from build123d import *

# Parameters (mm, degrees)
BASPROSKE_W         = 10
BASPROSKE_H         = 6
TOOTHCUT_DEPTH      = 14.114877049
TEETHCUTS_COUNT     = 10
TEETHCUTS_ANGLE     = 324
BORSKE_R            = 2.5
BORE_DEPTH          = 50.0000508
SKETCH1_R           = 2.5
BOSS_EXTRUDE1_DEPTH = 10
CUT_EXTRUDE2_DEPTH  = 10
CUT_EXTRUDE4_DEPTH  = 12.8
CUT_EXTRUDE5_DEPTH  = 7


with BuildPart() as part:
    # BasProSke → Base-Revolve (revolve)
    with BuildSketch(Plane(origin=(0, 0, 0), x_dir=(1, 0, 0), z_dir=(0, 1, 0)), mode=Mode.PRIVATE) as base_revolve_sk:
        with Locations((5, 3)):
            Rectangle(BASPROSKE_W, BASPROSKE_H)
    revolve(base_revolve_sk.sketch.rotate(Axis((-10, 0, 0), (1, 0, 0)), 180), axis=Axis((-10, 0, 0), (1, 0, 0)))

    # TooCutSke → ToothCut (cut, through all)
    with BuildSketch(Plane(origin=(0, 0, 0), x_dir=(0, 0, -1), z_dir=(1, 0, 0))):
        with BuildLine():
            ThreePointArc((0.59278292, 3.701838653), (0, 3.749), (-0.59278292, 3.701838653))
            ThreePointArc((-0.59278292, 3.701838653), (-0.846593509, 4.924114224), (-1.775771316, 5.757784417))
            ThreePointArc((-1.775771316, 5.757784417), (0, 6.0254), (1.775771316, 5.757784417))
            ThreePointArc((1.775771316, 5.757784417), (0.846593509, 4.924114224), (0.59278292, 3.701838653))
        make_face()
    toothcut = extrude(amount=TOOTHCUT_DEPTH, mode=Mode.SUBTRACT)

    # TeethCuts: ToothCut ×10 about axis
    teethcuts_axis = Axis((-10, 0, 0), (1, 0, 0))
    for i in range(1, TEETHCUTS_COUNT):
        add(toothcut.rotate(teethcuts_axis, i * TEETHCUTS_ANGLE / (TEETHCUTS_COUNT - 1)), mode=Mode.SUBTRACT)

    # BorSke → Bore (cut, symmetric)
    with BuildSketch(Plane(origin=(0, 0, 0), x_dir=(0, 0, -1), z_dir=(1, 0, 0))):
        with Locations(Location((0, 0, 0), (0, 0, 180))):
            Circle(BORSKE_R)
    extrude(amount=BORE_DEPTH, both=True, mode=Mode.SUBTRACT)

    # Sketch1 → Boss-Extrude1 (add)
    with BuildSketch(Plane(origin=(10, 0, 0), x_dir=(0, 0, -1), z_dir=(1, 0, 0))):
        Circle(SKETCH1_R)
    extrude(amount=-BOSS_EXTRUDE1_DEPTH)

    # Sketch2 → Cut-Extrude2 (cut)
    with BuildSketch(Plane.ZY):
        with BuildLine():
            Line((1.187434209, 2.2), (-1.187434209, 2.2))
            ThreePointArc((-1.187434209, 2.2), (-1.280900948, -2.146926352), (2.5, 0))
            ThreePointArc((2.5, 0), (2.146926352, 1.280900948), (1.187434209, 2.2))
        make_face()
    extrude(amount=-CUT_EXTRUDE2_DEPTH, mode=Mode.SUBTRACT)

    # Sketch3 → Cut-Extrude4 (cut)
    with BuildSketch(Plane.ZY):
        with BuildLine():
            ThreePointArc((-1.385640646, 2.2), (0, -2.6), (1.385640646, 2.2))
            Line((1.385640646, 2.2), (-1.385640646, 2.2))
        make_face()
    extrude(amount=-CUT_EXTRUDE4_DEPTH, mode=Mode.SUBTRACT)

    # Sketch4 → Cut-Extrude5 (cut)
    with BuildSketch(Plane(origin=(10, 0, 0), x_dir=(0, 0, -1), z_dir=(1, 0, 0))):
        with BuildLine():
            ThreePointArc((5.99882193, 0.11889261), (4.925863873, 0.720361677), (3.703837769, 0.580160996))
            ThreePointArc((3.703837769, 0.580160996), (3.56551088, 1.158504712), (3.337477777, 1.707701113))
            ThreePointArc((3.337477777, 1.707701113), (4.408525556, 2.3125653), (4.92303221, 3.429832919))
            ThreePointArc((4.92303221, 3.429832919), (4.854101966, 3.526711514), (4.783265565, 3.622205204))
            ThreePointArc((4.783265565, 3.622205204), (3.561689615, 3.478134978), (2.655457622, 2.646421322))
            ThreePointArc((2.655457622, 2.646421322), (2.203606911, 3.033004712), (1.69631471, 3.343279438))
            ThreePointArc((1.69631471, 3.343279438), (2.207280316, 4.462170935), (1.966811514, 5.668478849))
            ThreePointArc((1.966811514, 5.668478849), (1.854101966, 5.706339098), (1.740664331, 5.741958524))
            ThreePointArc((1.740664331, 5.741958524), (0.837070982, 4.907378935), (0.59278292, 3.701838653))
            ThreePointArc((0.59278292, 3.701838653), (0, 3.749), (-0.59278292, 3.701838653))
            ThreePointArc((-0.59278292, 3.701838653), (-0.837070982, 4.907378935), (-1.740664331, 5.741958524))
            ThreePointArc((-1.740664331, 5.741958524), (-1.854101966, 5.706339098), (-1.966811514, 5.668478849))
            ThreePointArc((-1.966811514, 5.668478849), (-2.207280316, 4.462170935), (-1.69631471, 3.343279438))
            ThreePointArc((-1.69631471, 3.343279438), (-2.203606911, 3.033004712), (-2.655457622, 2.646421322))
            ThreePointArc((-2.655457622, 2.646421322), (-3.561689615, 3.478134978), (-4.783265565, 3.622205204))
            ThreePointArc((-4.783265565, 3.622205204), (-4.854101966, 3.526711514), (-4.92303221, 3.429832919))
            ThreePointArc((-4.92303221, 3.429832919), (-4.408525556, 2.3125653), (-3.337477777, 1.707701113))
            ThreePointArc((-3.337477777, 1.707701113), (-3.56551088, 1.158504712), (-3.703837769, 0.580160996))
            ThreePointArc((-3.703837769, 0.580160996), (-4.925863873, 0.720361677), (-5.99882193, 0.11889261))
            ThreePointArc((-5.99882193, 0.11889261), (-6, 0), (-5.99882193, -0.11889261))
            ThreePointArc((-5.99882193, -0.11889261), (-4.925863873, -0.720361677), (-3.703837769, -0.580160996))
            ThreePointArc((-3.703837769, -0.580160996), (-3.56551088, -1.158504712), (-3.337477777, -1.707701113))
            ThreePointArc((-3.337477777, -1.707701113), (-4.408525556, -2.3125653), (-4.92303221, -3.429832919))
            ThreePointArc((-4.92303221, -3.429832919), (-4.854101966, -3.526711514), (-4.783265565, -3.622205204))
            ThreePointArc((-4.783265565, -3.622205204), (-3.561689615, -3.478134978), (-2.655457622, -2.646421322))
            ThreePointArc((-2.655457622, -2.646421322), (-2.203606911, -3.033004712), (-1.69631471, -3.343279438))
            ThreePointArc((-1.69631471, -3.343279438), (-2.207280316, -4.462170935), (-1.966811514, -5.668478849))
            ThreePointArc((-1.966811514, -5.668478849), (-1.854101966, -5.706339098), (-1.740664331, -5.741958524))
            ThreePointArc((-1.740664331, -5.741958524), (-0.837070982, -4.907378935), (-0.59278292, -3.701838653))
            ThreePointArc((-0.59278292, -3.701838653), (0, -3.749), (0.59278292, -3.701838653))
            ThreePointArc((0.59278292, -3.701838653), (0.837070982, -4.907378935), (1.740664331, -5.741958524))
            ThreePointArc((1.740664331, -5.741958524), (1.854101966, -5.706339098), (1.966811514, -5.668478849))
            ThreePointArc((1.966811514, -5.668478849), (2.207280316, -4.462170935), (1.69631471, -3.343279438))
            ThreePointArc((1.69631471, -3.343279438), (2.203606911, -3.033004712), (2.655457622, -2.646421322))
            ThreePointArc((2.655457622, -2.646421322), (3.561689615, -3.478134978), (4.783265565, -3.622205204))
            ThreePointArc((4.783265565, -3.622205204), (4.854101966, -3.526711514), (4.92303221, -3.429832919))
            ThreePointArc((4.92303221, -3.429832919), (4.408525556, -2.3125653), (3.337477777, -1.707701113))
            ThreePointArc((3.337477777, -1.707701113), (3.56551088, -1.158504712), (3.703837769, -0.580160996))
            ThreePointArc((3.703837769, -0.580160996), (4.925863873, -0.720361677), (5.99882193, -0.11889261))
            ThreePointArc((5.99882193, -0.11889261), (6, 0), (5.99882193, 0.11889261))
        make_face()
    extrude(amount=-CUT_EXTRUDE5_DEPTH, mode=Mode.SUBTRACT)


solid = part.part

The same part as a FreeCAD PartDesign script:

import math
import FreeCAD as App
import Part
import Sketcher
Q = App.Units.Quantity


def add_polygon(sketch, points):
    """Adds a closed chain of lines whose ends are joined by coincident constraints."""
    first, n = sketch.GeometryCount, len(points)
    for a, b in zip(points, points[1:] + points[:1]):
        sketch.addGeometry(Part.LineSegment(App.Vector(*a, 0), App.Vector(*b, 0)), False)
    for i in range(n):
        sketch.addConstraint(Sketcher.Constraint("Coincident", first + i, 2, first + (i + 1) % n, 1))

doc = App.newDocument("Part")
body = doc.addObject("PartDesign::Body", "Body")

sketch1 = doc.addObject("Sketcher::SketchObject", "Sketch")
body.addObject(sketch1)
sketch1.AttachmentSupport = (doc.XZ_Plane, [""])
sketch1.MapMode = "FlatFace"
add_polygon(sketch1, [(0, -6), (0, 0), (10, 0), (10, -6)])
sketch1.addConstraint([
    Sketcher.Constraint("Vertical", 0),
    Sketcher.Constraint("Horizontal", 1),
    Sketcher.Constraint("Vertical", 2),
    Sketcher.Constraint("Horizontal", 3),
    Sketcher.Constraint("Coincident", 0, 2, -1, 1),
    Sketcher.Constraint("DistanceX", 1, 1, 1, 2, Q("10 mm")),
    Sketcher.Constraint("DistanceY", 0, 1, 0, 2, Q("6 mm")),
])
revolution = doc.addObject("PartDesign::Revolution", "Revolution")
body.addObject(revolution)
revolution.Profile = sketch1
revolution.ReferenceAxis = (sketch1, ["H_Axis"])
revolution.Angle = 360

sketch2 = doc.addObject("Sketcher::SketchObject", "Sketch001")
body.addObject(sketch2)
sketch2.AttachmentSupport = (doc.YZ_Plane, [""])
sketch2.MapMode = "FlatFace"
sketch2.addGeometry([
    Part.ArcOfCircle(Part.Circle(App.Vector(0, 0, 0), App.Vector(0, 0, 1), 3.7), math.radians(-9.1), math.radians(9.1)),
    Part.ArcOfCircle(Part.Circle(App.Vector(3.9, -2.6, 0), App.Vector(0, 0, 1), 2), math.radians(24), math.radians(96)),
    Part.ArcOfCircle(Part.Circle(App.Vector(0, 0, 0), App.Vector(0, 0, 1), 6), math.radians(-17), math.radians(17)),
    Part.ArcOfCircle(Part.Circle(App.Vector(3.9, 2.6, 0), App.Vector(0, 0, 1), 2), math.radians(-96), math.radians(-24)),
], False)
sketch2.addConstraint([
    Sketcher.Constraint("Coincident", 0, 1, 1, 2),
    Sketcher.Constraint("Coincident", 1, 1, 2, 1),
    Sketcher.Constraint("Coincident", 2, 2, 3, 2),
    Sketcher.Constraint("Coincident", 3, 1, 0, 2),
    Sketcher.Constraint("Coincident", 0, 3, -1, 1),
    Sketcher.Constraint("Coincident", 2, 3, -1, 1),
    Sketcher.Constraint("Equal", 1, 3),
    Sketcher.Constraint("Symmetric", 1, 3, 3, 3, -1),
    Sketcher.Constraint("Radius", 1, Q("2 mm")),
    Sketcher.Constraint("Radius", 0, Q("3.749 mm")),
    Sketcher.Constraint("Radius", 2, Q("6.0254 mm")),
    Sketcher.Constraint("DistanceX", -1, 1, 0, 1, Q("3.701839 mm")),
    Sketcher.Constraint("DistanceY", 1, 1, -1, 1, Q("1.775771 mm")),
])
pocket1 = doc.addObject("PartDesign::Pocket", "Pocket")
body.addObject(pocket1)
pocket1.Profile = sketch2
pocket1.Type = "ThroughAll"
pocket1.Reversed = True
doc.recompute()

polarpattern = doc.addObject("PartDesign::PolarPattern", "PolarPattern")
body.addObject(polarpattern)
polarpattern.Originals = [pocket1]
polarpattern.Axis = (doc.X_Axis, [""])
polarpattern.Angle = 360
polarpattern.Occurrences = 10
body.Tip = polarpattern

sketch3 = doc.addObject("Sketcher::SketchObject", "Sketch002")
body.addObject(sketch3)
sketch3.AttachmentSupport = (doc.YZ_Plane, [""])
sketch3.MapMode = "FlatFace"
sketch3.addGeometry(Part.Circle(App.Vector(0, 0, 0), App.Vector(0, 0, 1), 2.5), False)
sketch3.addConstraint([
    Sketcher.Constraint("Coincident", 0, 3, -1, 1),
    Sketcher.Constraint("Diameter", 0, Q("5 mm")),
])
pocket2 = doc.addObject("PartDesign::Pocket", "Pocket001")
body.addObject(pocket2)
pocket2.Profile = sketch3
pocket2.Length = 100.000102
pocket2.Midplane = True

sketch4 = doc.addObject("Sketcher::SketchObject", "Sketch003")
body.addObject(sketch4)
sketch4.AttachmentSupport = (doc.YZ_Plane, [""])
sketch4.MapMode = "FlatFace"
sketch4.AttachmentOffset = App.Placement(App.Vector(0, 0, 10), App.Rotation())
sketch4.addGeometry(Part.Circle(App.Vector(0, 0, 0), App.Vector(0, 0, 1), 2.5), False)
sketch4.addConstraint([
    Sketcher.Constraint("Coincident", 0, 3, -1, 1),
    Sketcher.Constraint("Diameter", 0, Q("5 mm")),
])
pad1 = doc.addObject("PartDesign::Pad", "Pad")
body.addObject(pad1)
pad1.Profile = sketch4
pad1.Length = 10
pad1.Reversed = True

sketch5 = doc.addObject("Sketcher::SketchObject", "Sketch004")
body.addObject(sketch5)
sketch5.AttachmentSupport = (doc.YZ_Plane, [""])
sketch5.MapMode = "FlatFace"
sketch5.addGeometry([
    Part.LineSegment(App.Vector(2.2, 1.2, 0), App.Vector(2.2, -1.2, 0)),
    Part.ArcOfCircle(Part.Circle(App.Vector(0, 0, 0), App.Vector(0, 0, 1), 2.5), math.radians(90), math.radians(332)),
    Part.ArcOfCircle(Part.Circle(App.Vector(0, 0, 0), App.Vector(0, 0, 1), 2.5), math.radians(28), math.radians(90)),
], False)
sketch5.addConstraint([
    Sketcher.Constraint("Coincident", 0, 2, 1, 2),
    Sketcher.Constraint("Tangent", 1, 1, 2, 2),
    Sketcher.Constraint("Coincident", 2, 1, 0, 1),
    Sketcher.Constraint("Vertical", 0),
    Sketcher.Constraint("Coincident", 1, 3, -1, 1),
    Sketcher.Constraint("Equal", 1, 2),
    Sketcher.Constraint("PointOnObject", 1, 1, -2),
    Sketcher.Constraint("Radius", 1, Q("2.5 mm")),
    Sketcher.Constraint("DistanceX", -1, 1, 0, 2, Q("2.2 mm")),
])
pocket3 = doc.addObject("PartDesign::Pocket", "Pocket002")
body.addObject(pocket3)
pocket3.Profile = sketch5
pocket3.Length = 10
pocket3.Reversed = True

sketch6 = doc.addObject("Sketcher::SketchObject", "Sketch005")
body.addObject(sketch6)
sketch6.AttachmentSupport = (doc.YZ_Plane, [""])
sketch6.MapMode = "FlatFace"
sketch6.addGeometry([
    Part.ArcOfCircle(Part.Circle(App.Vector(0, 0, 0), App.Vector(0, 0, 1), 2.6), math.radians(32), math.radians(328)),
    Part.LineSegment(App.Vector(2.2, 1.4, 0), App.Vector(2.2, -1.4, 0)),
], False)
sketch6.addConstraint([
    Sketcher.Constraint("Coincident", 0, 1, 1, 1),
    Sketcher.Constraint("Coincident", 1, 2, 0, 2),
    Sketcher.Constraint("Vertical", 1),
    Sketcher.Constraint("Coincident", 0, 3, -1, 1),
    Sketcher.Constraint("Radius", 0, Q("2.6 mm")),
    Sketcher.Constraint("DistanceX", -1, 1, 0, 1, Q("2.2 mm")),
])
pocket4 = doc.addObject("PartDesign::Pocket", "Pocket003")
body.addObject(pocket4)
pocket4.Profile = sketch6
pocket4.Length = 12.8
pocket4.Reversed = True

sketch7 = doc.addObject("Sketcher::SketchObject", "Sketch006")
body.addObject(sketch7)
sketch7.AttachmentSupport = (doc.YZ_Plane, [""])
sketch7.MapMode = "FlatFace"
sketch7.AttachmentOffset = App.Placement(App.Vector(0, 0, 10), App.Rotation())
sketch7.addGeometry([
    Part.ArcOfCircle(Part.Circle(App.Vector(-1.24, -4.53, 0), App.Vector(0, 0, 1), 2), math.radians(-47), math.radians(24)),
    Part.ArcOfCircle(Part.Circle(App.Vector(0, 0, 0), App.Vector(0, 0, 1), 3.75), math.radians(-81.1), math.radians(-62.9)),
    Part.ArcOfCircle(Part.Circle(App.Vector(3.67, -2.94, 0), App.Vector(0, 0, 1), 2), math.radians(-168), math.radians(-97)),
    Part.ArcOfCircle(Part.Circle(App.Vector(0, 0, 0), App.Vector(0, 0, 1), 6), math.radians(-55.14), math.radians(-52.86)),
    Part.ArcOfCircle(Part.Circle(App.Vector(1.66, -4.4, 0), App.Vector(0, 0, 1), 2), math.radians(-11), math.radians(60)),
    Part.ArcOfCircle(Part.Circle(App.Vector(0, 0, 0), App.Vector(0, 0, 1), 3.75), math.radians(-45.1), math.radians(-26.9)),
    Part.ArcOfCircle(Part.Circle(App.Vector(4.69, -0.22, 0), App.Vector(0, 0, 1), 2), math.radians(-132), math.radians(-61)),
    Part.ArcOfCircle(Part.Circle(App.Vector(0, 0, 0), App.Vector(0, 0, 1), 6), math.radians(-19.14), math.radians(-16.86)),
    Part.ArcOfCircle(Part.Circle(App.Vector(3.93, -2.58, 0), App.Vector(0, 0, 1), 2), math.radians(25), math.radians(96)),
    Part.ArcOfCircle(Part.Circle(App.Vector(0, 0, 0), App.Vector(0, 0, 1), 3.75), math.radians(-9.1), math.radians(9.1)),
    Part.ArcOfCircle(Part.Circle(App.Vector(3.93, 2.58, 0), App.Vector(0, 0, 1), 2), math.radians(-96), math.radians(-25)),
    Part.ArcOfCircle(Part.Circle(App.Vector(0, 0, 0), App.Vector(0, 0, 1), 6), math.radians(16.86), math.radians(19.14)),
    Part.ArcOfCircle(Part.Circle(App.Vector(4.69, 0.22, 0), App.Vector(0, 0, 1), 2), math.radians(61), math.radians(132)),
    Part.ArcOfCircle(Part.Circle(App.Vector(0, 0, 0), App.Vector(0, 0, 1), 3.75), math.radians(26.9), math.radians(45.1)),
    Part.ArcOfCircle(Part.Circle(App.Vector(1.66, 4.4, 0), App.Vector(0, 0, 1), 2), math.radians(-60), math.radians(11)),
    Part.ArcOfCircle(Part.Circle(App.Vector(0, 0, 0), App.Vector(0, 0, 1), 6), math.radians(52.86), math.radians(55.14)),
    Part.ArcOfCircle(Part.Circle(App.Vector(3.67, 2.94, 0), App.Vector(0, 0, 1), 2), math.radians(97), math.radians(168)),
    Part.ArcOfCircle(Part.Circle(App.Vector(0, 0, 0), App.Vector(0, 0, 1), 3.75), math.radians(62.9), math.radians(81.1)),
    Part.ArcOfCircle(Part.Circle(App.Vector(-1.24, 4.53, 0), App.Vector(0, 0, 1), 2), math.radians(-24), math.radians(47)),
    Part.ArcOfCircle(Part.Circle(App.Vector(0, 0, 0), App.Vector(0, 0, 1), 6), math.radians(88.86), math.radians(91.14)),
    Part.ArcOfCircle(Part.Circle(App.Vector(1.24, 4.53, 0), App.Vector(0, 0, 1), 2), math.radians(133), math.radians(204)),
    Part.ArcOfCircle(Part.Circle(App.Vector(0, 0, 0), App.Vector(0, 0, 1), 3.75), math.radians(98.9), math.radians(117.1)),
    Part.ArcOfCircle(Part.Circle(App.Vector(-3.67, 2.94, 0), App.Vector(0, 0, 1), 2), math.radians(12), math.radians(83)),
    Part.ArcOfCircle(Part.Circle(App.Vector(0, 0, 0), App.Vector(0, 0, 1), 6), math.radians(124.86), math.radians(127.14)),
    Part.ArcOfCircle(Part.Circle(App.Vector(-1.66, 4.4, 0), App.Vector(0, 0, 1), 2), math.radians(169), math.radians(240)),
    Part.ArcOfCircle(Part.Circle(App.Vector(0, 0, 0), App.Vector(0, 0, 1), 3.75), math.radians(134.9), math.radians(153.1)),
    Part.ArcOfCircle(Part.Circle(App.Vector(-4.69, 0.22, 0), App.Vector(0, 0, 1), 2), math.radians(48), math.radians(119)),
    Part.ArcOfCircle(Part.Circle(App.Vector(0, 0, 0), App.Vector(0, 0, 1), 6), math.radians(160.86), math.radians(163.14)),
    Part.ArcOfCircle(Part.Circle(App.Vector(-3.93, 2.58, 0), App.Vector(0, 0, 1), 2), math.radians(-155), math.radians(-84)),
    Part.ArcOfCircle(Part.Circle(App.Vector(0, 0, 0), App.Vector(0, 0, 1), 3.75), math.radians(170.9), math.radians(189.1)),
    Part.ArcOfCircle(Part.Circle(App.Vector(-3.93, -2.58, 0), App.Vector(0, 0, 1), 2), math.radians(84), math.radians(155)),
    Part.ArcOfCircle(Part.Circle(App.Vector(0, 0, 0), App.Vector(0, 0, 1), 6), math.radians(-163.14), math.radians(-160.86)),
    Part.ArcOfCircle(Part.Circle(App.Vector(-4.69, -0.22, 0), App.Vector(0, 0, 1), 2), math.radians(-119), math.radians(-48)),
    Part.ArcOfCircle(Part.Circle(App.Vector(0, 0, 0), App.Vector(0, 0, 1), 3.75), math.radians(-153.1), math.radians(-134.9)),
    Part.ArcOfCircle(Part.Circle(App.Vector(-1.66, -4.4, 0), App.Vector(0, 0, 1), 2), math.radians(120), math.radians(191)),
    Part.ArcOfCircle(Part.Circle(App.Vector(0, 0, 0), App.Vector(0, 0, 1), 6), math.radians(-127.14), math.radians(-124.86)),
    Part.ArcOfCircle(Part.Circle(App.Vector(-3.67, -2.94, 0), App.Vector(0, 0, 1), 2), math.radians(-83), math.radians(-12)),
    Part.ArcOfCircle(Part.Circle(App.Vector(0, 0, 0), App.Vector(0, 0, 1), 3.75), math.radians(-117.1), math.radians(-98.9)),
    Part.ArcOfCircle(Part.Circle(App.Vector(1.24, -4.53, 0), App.Vector(0, 0, 1), 2), math.radians(156), math.radians(227)),
    Part.ArcOfCircle(Part.Circle(App.Vector(0, 0, 0), App.Vector(0, 0, 1), 6), math.radians(-91.14), math.radians(-88.86)),
], False)
sketch7.addConstraint([
    Sketcher.Constraint("Coincident", 0, 2, 1, 1),
    Sketcher.Constraint("Coincident", 1, 2, 2, 1),
    Sketcher.Constraint("Coincident", 2, 2, 3, 1),
    Sketcher.Constraint("Coincident", 3, 2, 4, 1),
    Sketcher.Constraint("Coincident", 4, 2, 5, 1),
    Sketcher.Constraint("Coincident", 5, 2, 6, 1),
    Sketcher.Constraint("Coincident", 6, 2, 7, 1),
    Sketcher.Constraint("Coincident", 7, 2, 8, 1),
    Sketcher.Constraint("Coincident", 8, 2, 9, 1),
    Sketcher.Constraint("Coincident", 9, 2, 10, 1),
    Sketcher.Constraint("Coincident", 10, 2, 11, 1),
    Sketcher.Constraint("Coincident", 11, 2, 12, 1),
    Sketcher.Constraint("Coincident", 12, 2, 13, 1),
    Sketcher.Constraint("Coincident", 13, 2, 14, 1),
    Sketcher.Constraint("Coincident", 14, 2, 15, 1),
    Sketcher.Constraint("Coincident", 15, 2, 16, 1),
    Sketcher.Constraint("Coincident", 16, 2, 17, 1),
    Sketcher.Constraint("Coincident", 17, 2, 18, 1),
    Sketcher.Constraint("Coincident", 18, 2, 19, 1),
    Sketcher.Constraint("Coincident", 19, 2, 20, 1),
    Sketcher.Constraint("Coincident", 20, 2, 21, 1),
    Sketcher.Constraint("Coincident", 21, 2, 22, 1),
    Sketcher.Constraint("Coincident", 22, 2, 23, 1),
    Sketcher.Constraint("Coincident", 23, 2, 24, 1),
    Sketcher.Constraint("Coincident", 24, 2, 25, 1),
    Sketcher.Constraint("Coincident", 25, 2, 26, 1),
    Sketcher.Constraint("Coincident", 26, 2, 27, 1),
    Sketcher.Constraint("Coincident", 27, 2, 28, 1),
    Sketcher.Constraint("Coincident", 28, 2, 29, 1),
    Sketcher.Constraint("Coincident", 29, 2, 30, 1),
    Sketcher.Constraint("Coincident", 30, 2, 31, 1),
    Sketcher.Constraint("Coincident", 31, 2, 32, 1),
    Sketcher.Constraint("Coincident", 32, 2, 33, 1),
    Sketcher.Constraint("Coincident", 33, 2, 34, 1),
    Sketcher.Constraint("Coincident", 34, 2, 35, 1),
    Sketcher.Constraint("Coincident", 35, 2, 36, 1),
    Sketcher.Constraint("Coincident", 36, 2, 37, 1),
    Sketcher.Constraint("Coincident", 37, 2, 38, 1),
    Sketcher.Constraint("Coincident", 38, 2, 39, 1),
    Sketcher.Constraint("Coincident", 39, 2, 0, 1),
    Sketcher.Constraint("Coincident", 1, 3, -1, 1),
    Sketcher.Constraint("Coincident", 3, 3, -1, 1),
    Sketcher.Constraint("Coincident", 5, 3, -1, 1),
    Sketcher.Constraint("Coincident", 7, 3, -1, 1),
    Sketcher.Constraint("Coincident", 9, 3, -1, 1),
    Sketcher.Constraint("Coincident", 11, 3, -1, 1),
    Sketcher.Constraint("Coincident", 13, 3, -1, 1),
    Sketcher.Constraint("Coincident", 15, 3, -1, 1),
    Sketcher.Constraint("Coincident", 17, 3, -1, 1),
    Sketcher.Constraint("Coincident", 19, 3, -1, 1),
    Sketcher.Constraint("Coincident", 21, 3, -1, 1),
    Sketcher.Constraint("Coincident", 23, 3, -1, 1),
    Sketcher.Constraint("Coincident", 25, 3, -1, 1),
    Sketcher.Constraint("Coincident", 27, 3, -1, 1),
    Sketcher.Constraint("Coincident", 29, 3, -1, 1),
    Sketcher.Constraint("Coincident", 31, 3, -1, 1),
    Sketcher.Constraint("Coincident", 33, 3, -1, 1),
    Sketcher.Constraint("Coincident", 35, 3, -1, 1),
    Sketcher.Constraint("Coincident", 37, 3, -1, 1),
    Sketcher.Constraint("Coincident", 39, 3, -1, 1),
    Sketcher.Constraint("Equal", 0, 2),
    Sketcher.Constraint("Equal", 2, 4),
    Sketcher.Constraint("Equal", 1, 5),
    Sketcher.Constraint("Equal", 4, 6),
    Sketcher.Constraint("Equal", 3, 7),
    Sketcher.Constraint("Equal", 6, 8),
    Sketcher.Constraint("Equal", 5, 9),
    Sketcher.Constraint("Equal", 8, 10),
    Sketcher.Constraint("Equal", 7, 11),
    Sketcher.Constraint("Equal", 10, 12),
    Sketcher.Constraint("Equal", 9, 13),
    Sketcher.Constraint("Equal", 12, 14),
    Sketcher.Constraint("Equal", 11, 15),
    Sketcher.Constraint("Equal", 14, 16),
    Sketcher.Constraint("Equal", 13, 17),
    Sketcher.Constraint("Equal", 16, 18),
    Sketcher.Constraint("Equal", 15, 19),
    Sketcher.Constraint("Equal", 18, 20),
    Sketcher.Constraint("Equal", 17, 21),
    Sketcher.Constraint("Equal", 20, 22),
    Sketcher.Constraint("Equal", 19, 23),
    Sketcher.Constraint("Equal", 22, 24),
    Sketcher.Constraint("Equal", 21, 25),
    Sketcher.Constraint("Equal", 24, 26),
    Sketcher.Constraint("Equal", 23, 27),
    Sketcher.Constraint("Equal", 26, 28),
    Sketcher.Constraint("Equal", 25, 29),
    Sketcher.Constraint("Equal", 28, 30),
    Sketcher.Constraint("Equal", 27, 31),
    Sketcher.Constraint("Equal", 30, 32),
    Sketcher.Constraint("Equal", 29, 33),
    Sketcher.Constraint("Equal", 32, 34),
    Sketcher.Constraint("Equal", 31, 35),
    Sketcher.Constraint("Equal", 34, 36),
    Sketcher.Constraint("Equal", 33, 37),
    Sketcher.Constraint("Equal", 36, 38),
    Sketcher.Constraint("Equal", 35, 39),
    Sketcher.Constraint("Symmetric", 0, 3, 20, 3, -1, 1),
    Sketcher.Constraint("Symmetric", 2, 3, 22, 3, -1, 1),
    Sketcher.Constraint("Symmetric", 4, 3, 24, 3, -1, 1),
    Sketcher.Constraint("Symmetric", 6, 3, 26, 3, -1, 1),
    Sketcher.Constraint("Symmetric", 8, 3, 28, 3, -1, 1),
    Sketcher.Constraint("Symmetric", 10, 3, 30, 3, -1, 1),
    Sketcher.Constraint("Symmetric", 12, 3, 32, 3, -1, 1),
    Sketcher.Constraint("Symmetric", 14, 3, 34, 3, -1, 1),
    Sketcher.Constraint("Symmetric", 16, 3, 36, 3, -1, 1),
    Sketcher.Constraint("Symmetric", 18, 3, 38, 3, -1, 1),
    Sketcher.Constraint("Symmetric", 18, 3, 20, 3, -2),
    Sketcher.Constraint("Symmetric", 16, 3, 22, 3, -2),
    Sketcher.Constraint("Symmetric", 14, 3, 24, 3, -2),
    Sketcher.Constraint("Symmetric", 12, 3, 26, 3, -2),
    Sketcher.Constraint("Symmetric", 10, 3, 28, 3, -2),
    Sketcher.Constraint("Radius", 0, Q("2 mm")),
    Sketcher.Constraint("Radius", 3, Q("6 mm")),
    Sketcher.Constraint("Radius", 1, Q("3.749 mm")),
    Sketcher.Constraint("DistanceX", -1, 1, 1, 2, Q("1.707701 mm")),
    Sketcher.Constraint("DistanceX", -1, 1, 2, 3, Q("3.66723 mm")),
    Sketcher.Constraint("DistanceX", -1, 1, 4, 3, Q("1.66018 mm")),
    Sketcher.Constraint("DistanceY", 4, 3, -1, 1, Q("4.395379 mm")),
    Sketcher.Constraint("DistanceX", -1, 1, 0, 2, Q("0.580161 mm")),
    Sketcher.Constraint("DistanceX", -1, 1, 5, 2, Q("3.343279 mm")),
    Sketcher.Constraint("DistanceX", -1, 1, 6, 2, Q("5.668479 mm")),
    Sketcher.Constraint("DistanceX", -1, 1, 7, 2, Q("5.741959 mm")),
    Sketcher.Constraint("DistanceX", -1, 1, 8, 2, Q("3.701839 mm")),
    Sketcher.Constraint("DistanceY", -1, 1, 18, 2, Q("5.998822 mm")),
])
pocket5 = doc.addObject("PartDesign::Pocket", "Pocket004")
body.addObject(pocket5)
pocket5.Profile = sketch7
pocket5.Length = 7

doc.recompute()
